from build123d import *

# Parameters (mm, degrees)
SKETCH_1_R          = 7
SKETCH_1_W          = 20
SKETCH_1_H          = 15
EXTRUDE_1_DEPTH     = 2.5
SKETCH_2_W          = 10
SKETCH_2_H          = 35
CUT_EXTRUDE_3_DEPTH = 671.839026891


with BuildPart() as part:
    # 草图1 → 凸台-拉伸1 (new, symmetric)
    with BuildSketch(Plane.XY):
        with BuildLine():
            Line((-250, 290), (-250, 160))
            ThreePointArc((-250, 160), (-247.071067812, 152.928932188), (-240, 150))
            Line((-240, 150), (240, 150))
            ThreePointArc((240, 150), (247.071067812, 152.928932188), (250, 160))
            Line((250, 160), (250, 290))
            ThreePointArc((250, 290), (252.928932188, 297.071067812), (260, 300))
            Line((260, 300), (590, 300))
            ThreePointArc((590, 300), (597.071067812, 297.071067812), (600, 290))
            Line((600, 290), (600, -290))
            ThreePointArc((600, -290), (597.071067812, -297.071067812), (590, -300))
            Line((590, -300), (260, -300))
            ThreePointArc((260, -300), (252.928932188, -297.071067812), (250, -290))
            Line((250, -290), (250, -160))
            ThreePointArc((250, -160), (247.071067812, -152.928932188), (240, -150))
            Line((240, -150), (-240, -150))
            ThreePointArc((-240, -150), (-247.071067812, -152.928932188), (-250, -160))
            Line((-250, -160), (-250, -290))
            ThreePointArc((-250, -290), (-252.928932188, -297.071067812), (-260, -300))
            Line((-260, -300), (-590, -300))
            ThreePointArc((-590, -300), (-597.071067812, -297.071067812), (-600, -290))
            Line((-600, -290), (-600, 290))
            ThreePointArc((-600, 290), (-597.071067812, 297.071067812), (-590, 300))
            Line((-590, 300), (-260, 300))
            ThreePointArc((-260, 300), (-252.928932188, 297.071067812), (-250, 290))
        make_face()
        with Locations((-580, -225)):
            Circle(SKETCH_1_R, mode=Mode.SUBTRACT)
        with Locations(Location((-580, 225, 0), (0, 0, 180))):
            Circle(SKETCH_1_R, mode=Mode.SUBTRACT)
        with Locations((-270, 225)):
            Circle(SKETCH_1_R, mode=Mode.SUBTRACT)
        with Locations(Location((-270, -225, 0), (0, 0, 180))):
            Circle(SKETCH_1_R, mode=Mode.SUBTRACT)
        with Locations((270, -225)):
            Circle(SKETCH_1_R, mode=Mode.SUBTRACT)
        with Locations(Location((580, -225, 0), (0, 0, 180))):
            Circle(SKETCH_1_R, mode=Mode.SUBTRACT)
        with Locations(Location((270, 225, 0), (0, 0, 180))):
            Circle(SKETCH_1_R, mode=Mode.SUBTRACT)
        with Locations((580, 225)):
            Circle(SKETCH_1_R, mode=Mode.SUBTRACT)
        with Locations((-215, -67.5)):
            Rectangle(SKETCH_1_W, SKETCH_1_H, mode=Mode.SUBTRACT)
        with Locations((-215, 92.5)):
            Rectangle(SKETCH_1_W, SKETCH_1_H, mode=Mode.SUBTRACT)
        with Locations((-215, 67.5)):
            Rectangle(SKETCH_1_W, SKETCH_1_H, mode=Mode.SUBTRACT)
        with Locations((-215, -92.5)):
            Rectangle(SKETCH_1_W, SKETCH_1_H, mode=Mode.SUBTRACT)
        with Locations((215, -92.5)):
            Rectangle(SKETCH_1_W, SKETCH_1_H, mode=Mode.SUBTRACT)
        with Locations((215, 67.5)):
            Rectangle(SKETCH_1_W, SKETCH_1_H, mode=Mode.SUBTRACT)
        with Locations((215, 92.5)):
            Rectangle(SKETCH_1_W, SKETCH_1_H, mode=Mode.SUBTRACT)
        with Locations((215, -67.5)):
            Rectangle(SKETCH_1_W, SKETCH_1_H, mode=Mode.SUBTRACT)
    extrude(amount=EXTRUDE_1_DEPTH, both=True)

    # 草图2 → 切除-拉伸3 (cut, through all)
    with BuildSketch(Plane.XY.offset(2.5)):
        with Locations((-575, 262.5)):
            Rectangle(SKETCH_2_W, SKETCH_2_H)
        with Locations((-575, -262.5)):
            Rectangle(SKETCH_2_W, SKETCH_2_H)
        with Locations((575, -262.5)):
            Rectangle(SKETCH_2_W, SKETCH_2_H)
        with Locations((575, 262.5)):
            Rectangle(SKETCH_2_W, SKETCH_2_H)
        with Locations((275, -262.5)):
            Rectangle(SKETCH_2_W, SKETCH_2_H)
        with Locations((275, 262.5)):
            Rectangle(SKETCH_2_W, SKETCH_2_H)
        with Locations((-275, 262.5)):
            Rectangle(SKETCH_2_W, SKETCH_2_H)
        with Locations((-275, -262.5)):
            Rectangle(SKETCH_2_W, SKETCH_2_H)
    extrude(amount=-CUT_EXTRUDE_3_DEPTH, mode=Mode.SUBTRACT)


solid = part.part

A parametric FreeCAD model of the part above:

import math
import FreeCAD as App
import Part
import Sketcher
Q = App.Units.Quantity

doc = App.newDocument("Part")
body = doc.addObject("PartDesign::Body", "Body")

sketch1 = doc.addObject("Sketcher::SketchObject", "Sketch")
body.addObject(sketch1)
sketch1.AttachmentSupport = (doc.XY_Plane, [""])
sketch1.MapMode = "FlatFace"
sketch1.addGeometry([
    Part.LineSegment(App.Vector(-250, 160, 0), App.Vector(-250, 290, 0)),
    Part.ArcOfCircle(Part.Circle(App.Vector(-260, 290, 0), App.Vector(0, 0, 1), 10), math.radians(0), math.radians(90)),
    Part.LineSegment(App.Vector(-260, 300, 0), App.Vector(-590, 300, 0)),
    Part.ArcOfCircle(Part.Circle(App.Vector(-590, 290, 0), App.Vector(0, 0, 1), 10), math.radians(90), math.radians(180)),
    Part.LineSegment(App.Vector(-600, 290, 0), App.Vector(-600, -290, 0)),
    Part.ArcOfCircle(Part.Circle(App.Vector(-590, -290, 0), App.Vector(0, 0, 1), 10), math.radians(180), math.radians(270)),
    Part.LineSegment(App.Vector(-590, -300, 0), App.Vector(-260, -300, 0)),
    Part.ArcOfCircle(Part.Circle(App.Vector(-260, -290, 0), App.Vector(0, 0, 1), 10), math.radians(-90), math.radians(0)),
    Part.LineSegment(App.Vector(-250, -290, 0), App.Vector(-250, -160, 0)),
    Part.ArcOfCircle(Part.Circle(App.Vector(-240, -160, 0), App.Vector(0, 0, 1), 10), math.radians(90), math.radians(180)),
    Part.LineSegment(App.Vector(-240, -150, 0), App.Vector(240, -150, 0)),
    Part.ArcOfCircle(Part.Circle(App.Vector(240, -160, 0), App.Vector(0, 0, 1), 10), math.radians(0), math.radians(90)),
    Part.LineSegment(App.Vector(250, -160, 0), App.Vector(250, -290, 0)),
    Part.ArcOfCircle(Part.Circle(App.Vector(260, -290, 0), App.Vector(0, 0, 1), 10), math.radians(180), math.radians(270)),
    Part.LineSegment(App.Vector(260, -300, 0), App.Vector(590, -300, 0)),
    Part.ArcOfCircle(Part.Circle(App.Vector(590, -290, 0), App.Vector(0, 0, 1), 10), math.radians(-90), math.radians(0)),
    Part.LineSegment(App.Vector(600, -290, 0), App.Vector(600, 290, 0)),
    Part.ArcOfCircle(Part.Circle(App.Vector(590, 290, 0), App.Vector(0, 0, 1), 10), math.radians(0), math.radians(90)),
    Part.LineSegment(App.Vector(590, 300, 0), App.Vector(260, 300, 0)),
    Part.ArcOfCircle(Part.Circle(App.Vector(260, 290, 0), App.Vector(0, 0, 1), 10), math.radians(90), math.radians(180)),
    Part.LineSegment(App.Vector(250, 290, 0), App.Vector(250, 160, 0)),
    Part.ArcOfCircle(Part.Circle(App.Vector(240, 160, 0), App.Vector(0, 0, 1), 10), math.radians(-90), math.radians(0)),
    Part.LineSegment(App.Vector(240, 150, 0), App.Vector(-240, 150, 0)),
    Part.ArcOfCircle(Part.Circle(App.Vector(-240, 160, 0), App.Vector(0, 0, 1), 10), math.radians(180), math.radians(270)),
    Part.Circle(App.Vector(580, -225, 0), App.Vector(0, 0, 1), 7),
    Part.Circle(App.Vector(270, -225, 0), App.Vector(0, 0, 1), 7),
    Part.LineSegment(App.Vector(205, -100, 0), App.Vector(205, -85, 0)),
    Part.LineSegment(App.Vector(205, -85, 0), App.Vector(225, -85, 0)),
    Part.LineSegment(App.Vector(225, -85, 0), App.Vector(225, -100, 0)),
    Part.LineSegment(App.Vector(225, -100, 0), App.Vector(205, -100, 0)),
    Part.LineSegment(App.Vector(205, -75, 0), App.Vector(205, -60, 0)),
    Part.LineSegment(App.Vector(205, -60, 0), App.Vector(225, -60, 0)),
    Part.LineSegment(App.Vector(225, -60, 0), App.Vector(225, -75, 0)),
    Part.LineSegment(App.Vector(225, -75, 0), App.Vector(205, -75, 0)),
    Part.Circle(App.Vector(-270, -225, 0), App.Vector(0, 0, 1), 7),
    Part.Circle(App.Vector(-580, -225, 0), App.Vector(0, 0, 1), 7),
    Part.LineSegment(App.Vector(-225, -100, 0), App.Vector(-225, -85, 0)),
    Part.LineSegment(App.Vector(-225, -85, 0), App.Vector(-205, -85, 0)),
    Part.LineSegment(App.Vector(-205, -85, 0), App.Vector(-205, -100, 0)),
    Part.LineSegment(App.Vector(-205, -100, 0), App.Vector(-225, -100, 0)),
    Part.LineSegment(App.Vector(-225, -75, 0), App.Vector(-225, -60, 0)),
    Part.LineSegment(App.Vector(-225, -60, 0), App.Vector(-205, -60, 0)),
    Part.LineSegment(App.Vector(-205, -60, 0), App.Vector(-205, -75, 0)),
    Part.LineSegment(App.Vector(-205, -75, 0), App.Vector(-225, -75, 0)),
    Part.LineSegment(App.Vector(205, 60, 0), App.Vector(205, 75, 0)),
    Part.LineSegment(App.Vector(205, 75, 0), App.Vector(225, 75, 0)),
    Part.LineSegment(App.Vector(225, 75, 0), App.Vector(225, 60, 0)),
    Part.LineSegment(App.Vector(225, 60, 0), App.Vector(205, 60, 0)),
    Part.LineSegment(App.Vector(205, 85, 0), App.Vector(205, 100, 0)),
    Part.LineSegment(App.Vector(205, 100, 0), App.Vector(225, 100, 0)),
    Part.LineSegment(App.Vector(225, 100, 0), App.Vector(225, 85, 0)),
    Part.LineSegment(App.Vector(225, 85, 0), App.Vector(205, 85, 0)),
    Part.Circle(App.Vector(580, 225, 0), App.Vector(0, 0, 1), 7),
    Part.Circle(App.Vector(270, 225, 0), App.Vector(0, 0, 1), 7),
    Part.LineSegment(App.Vector(-225, 60, 0), App.Vector(-225, 75, 0)),
    Part.LineSegment(App.Vector(-225, 75, 0), App.Vector(-205, 75, 0)),
    Part.LineSegment(App.Vector(-205, 75, 0), App.Vector(-205, 60, 0)),
    Part.LineSegment(App.Vector(-205, 60, 0), App.Vector(-225, 60, 0)),
    Part.LineSegment(App.Vector(-225, 85, 0), App.Vector(-225, 100, 0)),
    Part.LineSegment(App.Vector(-225, 100, 0), App.Vector(-205, 100, 0)),
    Part.LineSegment(App.Vector(-205, 100, 0), App.Vector(-205, 85, 0)),
    Part.LineSegment(App.Vector(-205, 85, 0), App.Vector(-225, 85, 0)),
    Part.Circle(App.Vector(-270, 225, 0), App.Vector(0, 0, 1), 7),
    Part.Circle(App.Vector(-580, 225, 0), App.Vector(0, 0, 1), 7),
], False)
sketch1.addConstraint([
    Sketcher.Constraint("Tangent", 0, 2, 1, 1),
    Sketcher.Constraint("Tangent", 1, 2, 2, 1),
    Sketcher.Constraint("Tangent", 2, 2, 3, 1),
    Sketcher.Constraint("Tangent", 3, 2, 4, 1),
    Sketcher.Constraint("Tangent", 4, 2, 5, 1),
    Sketcher.Constraint("Tangent", 5, 2, 6, 1),
    Sketcher.Constraint("Tangent", 6, 2, 7, 1),
    Sketcher.Constraint("Tangent", 7, 2, 8, 1),
    Sketcher.Constraint("Tangent", 8, 2, 9, 2),
    Sketcher.Constraint("Tangent", 9, 1, 10, 1),
    Sketcher.Constraint("Tangent", 10, 2, 11, 2),
    Sketcher.Constraint("Tangent", 11, 1, 12, 1),
    Sketcher.Constraint("Tangent", 12, 2, 13, 1),
    Sketcher.Constraint("Tangent", 13, 2, 14, 1),
    Sketcher.Constraint("Tangent", 14, 2, 15, 1),
    Sketcher.Constraint("Tangent", 15, 2, 16, 1),
    Sketcher.Constraint("Tangent", 16, 2, 17, 1),
    Sketcher.Constraint("Tangent", 17, 2, 18, 1),
    Sketcher.Constraint("Tangent", 18, 2, 19, 1),
    Sketcher.Constraint("Tangent", 19, 2, 20, 1),
    Sketcher.Constraint("Tangent", 20, 2, 21, 2),
    Sketcher.Constraint("Tangent", 21, 1, 22, 1),
    Sketcher.Constraint("Tangent", 22, 2, 23, 2),
    Sketcher.Constraint("Tangent", 23, 1, 0, 1),
    Sketcher.Constraint("Coincident", 26, 2, 27, 1),
    Sketcher.Constraint("Coincident", 27, 2, 28, 1),
    Sketcher.Constraint("Coincident", 28, 2, 29, 1),
    Sketcher.Constraint("Coincident", 29, 2, 26, 1),
    Sketcher.Constraint("Coincident", 30, 2, 31, 1),
    Sketcher.Constraint("Coincident", 31, 2, 32, 1),
    Sketcher.Constraint("Coincident", 32, 2, 33, 1),
    Sketcher.Constraint("Coincident", 33, 2, 30, 1),
    Sketcher.Constraint("Coincident", 36, 2, 37, 1),
    Sketcher.Constraint("Coincident", 37, 2, 38, 1),
    Sketcher.Constraint("Coincident", 38, 2, 39, 1),
    Sketcher.Constraint("Coincident", 39, 2, 36, 1),
    Sketcher.Constraint("Coincident", 40, 2, 41, 1),
    Sketcher.Constraint("Coincident", 41, 2, 42, 1),
    Sketcher.Constraint("Coincident", 42, 2, 43, 1),
    Sketcher.Constraint("Coincident", 43, 2, 40, 1),
    Sketcher.Constraint("Coincident", 44, 2, 45, 1),
    Sketcher.Constraint("Coincident", 45, 2, 46, 1),
    Sketcher.Constraint("Coincident", 46, 2, 47, 1),
    Sketcher.Constraint("Coincident", 47, 2, 44, 1),
    Sketcher.Constraint("Coincident", 48, 2, 49, 1),
    Sketcher.Constraint("Coincident", 49, 2, 50, 1),
    Sketcher.Constraint("Coincident", 50, 2, 51, 1),
    Sketcher.Constraint("Coincident", 51, 2, 48, 1),
    Sketcher.Constraint("Coincident", 54, 2, 55, 1),
    Sketcher.Constraint("Coincident", 55, 2, 56, 1),
    Sketcher.Constraint("Coincident", 56, 2, 57, 1),
    Sketcher.Constraint("Coincident", 57, 2, 54, 1),
    Sketcher.Constraint("Coincident", 58, 2, 59, 1),
    Sketcher.Constraint("Coincident", 59, 2, 60, 1),
    Sketcher.Constraint("Coincident", 60, 2, 61, 1),
    Sketcher.Constraint("Coincident", 61, 2, 58, 1),
    Sketcher.Constraint("Vertical", 0),
    Sketcher.Constraint("Horizontal", 2),
    Sketcher.Constraint("Vertical", 4),
    Sketcher.Constraint("Horizontal", 6),
    Sketcher.Constraint("Vertical", 8),
    Sketcher.Constraint("Horizontal", 10),
    Sketcher.Constraint("Vertical", 12),
    Sketcher.Constraint("Horizontal", 14),
    Sketcher.Constraint("Vertical", 16),
    Sketcher.Constraint("Horizontal", 18),
    Sketcher.Constraint("Vertical", 20),
    Sketcher.Constraint("Horizontal", 22),
    Sketcher.Constraint("Vertical", 26),
    Sketcher.Constraint("Horizontal", 27),
    Sketcher.Constraint("Vertical", 28),
    Sketcher.Constraint("Horizontal", 29),
    Sketcher.Constraint("Vertical", 30),
    Sketcher.Constraint("Horizontal", 31),
    Sketcher.Constraint("Vertical", 32),
    Sketcher.Constraint("Horizontal", 33),
    Sketcher.Constraint("Vertical", 36),
    Sketcher.Constraint("Horizontal", 37),
    Sketcher.Constraint("Vertical", 38),
    Sketcher.Constraint("Horizontal", 39),
    Sketcher.Constraint("Vertical", 40),
    Sketcher.Constraint("Horizontal", 41),
    Sketcher.Constraint("Vertical", 42),
    Sketcher.Constraint("Horizontal", 43),
    Sketcher.Constraint("Vertical", 44),
    Sketcher.Constraint("Horizontal", 45),
    Sketcher.Constraint("Vertical", 46),
    Sketcher.Constraint("Horizontal", 47),
    Sketcher.Constraint("Vertical", 48),
    Sketcher.Constraint("Horizontal", 49),
    Sketcher.Constraint("Vertical", 50),
    Sketcher.Constraint("Horizontal", 51),
    Sketcher.Constraint("Vertical", 54),
    Sketcher.Constraint("Horizontal", 55),
    Sketcher.Constraint("Vertical", 56),
    Sketcher.Constraint("Horizontal", 57),
    Sketcher.Constraint("Vertical", 58),
    Sketcher.Constraint("Horizontal", 59),
    Sketcher.Constraint("Vertical", 60),
    Sketcher.Constraint("Horizontal", 61),
    Sketcher.Constraint("Equal", 1, 3),
    Sketcher.Constraint("Equal", 3, 5),
    Sketcher.Constraint("Equal", 5, 7),
    Sketcher.Constraint("Equal", 7, 9),
    Sketcher.Constraint("Equal", 9, 11),
    Sketcher.Constraint("Equal", 11, 13),
    Sketcher.Constraint("Equal", 13, 15),
    Sketcher.Constraint("Equal", 15, 17),
    Sketcher.Constraint("Equal", 17, 19),
    Sketcher.Constraint("Equal", 19, 21),
    Sketcher.Constraint("Equal", 21, 23),
    Sketcher.Constraint("Equal", 24, 25),
    Sketcher.Constraint("Equal", 25, 34),
    Sketcher.Constraint("Equal", 34, 35),
    Sketcher.Constraint("Equal", 35, 52),
    Sketcher.Constraint("Equal", 52, 53),
    Sketcher.Constraint("Equal", 53, 62),
    Sketcher.Constraint("Equal", 62, 63),
    Sketcher.Constraint("Symmetric", 1, 3, 13, 3, -1, 1),
    Sketcher.Constraint("Symmetric", 5, 3, 17, 3, -1, 1),
    Sketcher.Constraint("Symmetric", 9, 3, 21, 3, -1, 1),
    Sketcher.Constraint("Symmetric", 35, 3, 52, 3, -1, 1),
    Sketcher.Constraint("Symmetric", 34, 3, 53, 3, -1, 1),
    Sketcher.Constraint("Symmetric", 25, 3, 62, 3, -1, 1),
    Sketcher.Constraint("Symmetric", 24, 3, 63, 3, -1, 1),
    Sketcher.Constraint("Symmetric", 42, 2, 44, 2, -1, 1),
    Sketcher.Constraint("Symmetric", 40, 2, 46, 2, -1, 1),
    Sketcher.Constraint("Symmetric", 38, 2, 48, 2, -1, 1),
    Sketcher.Constraint("Symmetric", 36, 2, 50, 2, -1, 1),
    Sketcher.Constraint("Symmetric", 32, 2, 54, 2, -1, 1),
    Sketcher.Constraint("Symmetric", 30, 2, 56, 2, -1, 1),
    Sketcher.Constraint("Symmetric", 28, 2, 58, 2, -1, 1),
    Sketcher.Constraint("Symmetric", 26, 2, 60, 2, -1, 1),
    Sketcher.Constraint("Symmetric", 7, 3, 13, 3, -2),
    Sketcher.Constraint("Symmetric", 25, 3, 34, 3, -2),
    Sketcher.Constraint("Symmetric", 24, 3, 35, 3, -2),
    Sketcher.Constraint("Symmetric", 27, 2, 36, 2, -2),
    Sketcher.Constraint("Symmetric", 29, 2, 38, 2, -2),
    Sketcher.Constraint("Symmetric", 31, 2, 40, 2, -2),
    Sketcher.Constraint("Symmetric", 33, 2, 42, 2, -2),
    Sketcher.Constraint("Horizontal", 24, 3, 25, 3),
    Sketcher.Constraint("Vertical", 29, 2, 30, 2),
    Sketcher.Constraint("Vertical", 28, 2, 31, 2),
    Sketcher.Constraint("Equal", 28, 30),
    Sketcher.Constraint("Diameter", 24, Q("14 mm")),
    Sketcher.Constraint("Radius", 1, Q("10 mm")),
    Sketcher.Constraint("DistanceX", 2, 2, 2, 1, Q("330 mm")),
    Sketcher.Constraint("DistanceX", 10, 1, 10, 2, Q("480 mm")),
    Sketcher.Constraint("DistanceX", 27, 1, 27, 2, Q("20 mm")),
    Sketcher.Constraint("DistanceY", 0, 1, 0, 2, Q("130 mm")),
    Sketcher.Constraint("DistanceY", 4, 2, 4, 1, Q("580 mm")),
    Sketcher.Constraint("DistanceY", 26, 1, 26, 2, Q("15 mm")),
    Sketcher.Constraint("DistanceX", -1, 1, 24, 3, Q("580 mm")),
    Sketcher.Constraint("DistanceY", 24, 3, -1, 1, Q("225 mm")),
    Sketcher.Constraint("DistanceX", -1, 1, 25, 3, Q("270 mm")),
    Sketcher.Constraint("DistanceX", -1, 1, 26, 2, Q("205 mm")),
    Sketcher.Constraint("DistanceY", 26, 2, -1, 1, Q("85 mm")),
    Sketcher.Constraint("DistanceY", 30, 2, -1, 1, Q("60 mm")),
])
pad1 = doc.addObject("PartDesign::Pad", "Pad")
body.addObject(pad1)
pad1.Profile = sketch1
pad1.Length = 5
pad1.Midplane = True

sketch2 = doc.addObject("Sketcher::SketchObject", "Sketch001")
body.addObject(sketch2)
sketch2.AttachmentSupport = (doc.XY_Plane, [""])
sketch2.MapMode = "FlatFace"
sketch2.AttachmentOffset = App.Placement(App.Vector(0, 0, 2.5), App.Rotation())
sketch2.addGeometry([
    Part.LineSegment(App.Vector(-580, 280, 0), App.Vector(-580, 245, 0)),
    Part.LineSegment(App.Vector(-580, 245, 0), App.Vector(-570, 245, 0)),
    Part.LineSegment(App.Vector(-570, 245, 0), App.Vector(-570, 280, 0)),
    Part.LineSegment(App.Vector(-570, 280, 0), App.Vector(-580, 280, 0)),
    Part.LineSegment(App.Vector(-580, -245, 0), App.Vector(-580, -280, 0)),
    Part.LineSegment(App.Vector(-580, -280, 0), App.Vector(-570, -280, 0)),
    Part.LineSegment(App.Vector(-570, -280, 0), App.Vector(-570, -245, 0)),
    Part.LineSegment(App.Vector(-570, -245, 0), App.Vector(-580, -245, 0)),
    Part.LineSegment(App.Vector(570, -245, 0), App.Vector(570, -280, 0)),
    Part.LineSegment(App.Vector(570, -280, 0), App.Vector(580, -280, 0)),
    Part.LineSegment(App.Vector(580, -280, 0), App.Vector(580, -245, 0)),
    Part.LineSegment(App.Vector(580, -245, 0), App.Vector(570, -245, 0)),
    Part.LineSegment(App.Vector(570, 280, 0), App.Vector(570, 245, 0)),
    Part.LineSegment(App.Vector(570, 245, 0), App.Vector(580, 245, 0)),
    Part.LineSegment(App.Vector(580, 245, 0), App.Vector(580, 280, 0)),
    Part.LineSegment(App.Vector(580, 280, 0), App.Vector(570, 280, 0)),
    Part.LineSegment(App.Vector(270, -245, 0), App.Vector(270, -280, 0)),
    Part.LineSegment(App.Vector(270, -280, 0), App.Vector(280, -280, 0)),
    Part.LineSegment(App.Vector(280, -280, 0), App.Vector(280, -245, 0)),
    Part.LineSegment(App.Vector(280, -245, 0), App.Vector(270, -245, 0)),
    Part.LineSegment(App.Vector(270, 280, 0), App.Vector(270, 245, 0)),
    Part.LineSegment(App.Vector(270, 245, 0), App.Vector(280, 245, 0)),
    Part.LineSegment(App.Vector(280, 245, 0), App.Vector(280, 280, 0)),
    Part.LineSegment(App.Vector(280, 280, 0), App.Vector(270, 280, 0)),
    Part.LineSegment(App.Vector(-280, 280, 0), App.Vector(-280, 245, 0)),
    Part.LineSegment(App.Vector(-280, 245, 0), App.Vector(-270, 245, 0)),
    Part.LineSegment(App.Vector(-270, 245, 0), App.Vector(-270, 280, 0)),
    Part.LineSegment(App.Vector(-270, 280, 0), App.Vector(-280, 280, 0)),
    Part.LineSegment(App.Vector(-280, -245, 0), App.Vector(-280, -280, 0)),
    Part.LineSegment(App.Vector(-280, -280, 0), App.Vector(-270, -280, 0)),
    Part.LineSegment(App.Vector(-270, -280, 0), App.Vector(-270, -245, 0)),
    Part.LineSegment(App.Vector(-270, -245, 0), App.Vector(-280, -245, 0)),
], False)
sketch2.addConstraint([
    Sketcher.Constraint("Coincident", 0, 2, 1, 1),
    Sketcher.Constraint("Coincident", 1, 2, 2, 1),
    Sketcher.Constraint("Coincident", 2, 2, 3, 1),
    Sketcher.Constraint("Coincident", 3, 2, 0, 1),
    Sketcher.Constraint("Coincident", 4, 2, 5, 1),
    Sketcher.Constraint("Coincident", 5, 2, 6, 1),
    Sketcher.Constraint("Coincident", 6, 2, 7, 1),
    Sketcher.Constraint("Coincident", 7, 2, 4, 1),
    Sketcher.Constraint("Coincident", 8, 2, 9, 1),
    Sketcher.Constraint("Coincident", 9, 2, 10, 1),
    Sketcher.Constraint("Coincident", 10, 2, 11, 1),
    Sketcher.Constraint("Coincident", 11, 2, 8, 1),
    Sketcher.Constraint("Coincident", 12, 2, 13, 1),
    Sketcher.Constraint("Coincident", 13, 2, 14, 1),
    Sketcher.Constraint("Coincident", 14, 2, 15, 1),
    Sketcher.Constraint("Coincident", 15, 2, 12, 1),
    Sketcher.Constraint("Coincident", 16, 2, 17, 1),
    Sketcher.Constraint("Coincident", 17, 2, 18, 1),
    Sketcher.Constraint("Coincident", 18, 2, 19, 1),
    Sketcher.Constraint("Coincident", 19, 2, 16, 1),
    Sketcher.Constraint("Coincident", 20, 2, 21, 1),
    Sketcher.Constraint("Coincident", 21, 2, 22, 1),
    Sketcher.Constraint("Coincident", 22, 2, 23, 1),
    Sketcher.Constraint("Coincident", 23, 2, 20, 1),
    Sketcher.Constraint("Coincident", 24, 2, 25, 1),
    Sketcher.Constraint("Coincident", 25, 2, 26, 1),
    Sketcher.Constraint("Coincident", 26, 2, 27, 1),
    Sketcher.Constraint("Coincident", 27, 2, 24, 1),
    Sketcher.Constraint("Coincident", 28, 2, 29, 1),
    Sketcher.Constraint("Coincident", 29, 2, 30, 1),
    Sketcher.Constraint("Coincident", 30, 2, 31, 1),
    Sketcher.Constraint("Coincident", 31, 2, 28, 1),
    Sketcher.Constraint("Vertical", 0),
    Sketcher.Constraint("Horizontal", 1),
    Sketcher.Constraint("Vertical", 2),
    Sketcher.Constraint("Horizontal", 3),
    Sketcher.Constraint("Vertical", 4),
    Sketcher.Constraint("Horizontal", 5),
    Sketcher.Constraint("Vertical", 6),
    Sketcher.Constraint("Horizontal", 7),
    Sketcher.Constraint("Vertical", 8),
    Sketcher.Constraint("Horizontal", 9),
    Sketcher.Constraint("Vertical", 10),
    Sketcher.Constraint("Horizontal", 11),
    Sketcher.Constraint("Vertical", 12),
    Sketcher.Constraint("Horizontal", 13),
    Sketcher.Constraint("Vertical", 14),
    Sketcher.Constraint("Horizontal", 15),
    Sketcher.Constraint("Vertical", 16),
    Sketcher.Constraint("Horizontal", 17),
    Sketcher.Constraint("Vertical", 18),
    Sketcher.Constraint("Horizontal", 19),
    Sketcher.Constraint("Vertical", 20),
    Sketcher.Constraint("Horizontal", 21),
    Sketcher.Constraint("Vertical", 22),
    Sketcher.Constraint("Horizontal", 23),
    Sketcher.Constraint("Vertical", 24),
    Sketcher.Constraint("Horizontal", 25),
    Sketcher.Constraint("Vertical", 26),
    Sketcher.Constraint("Horizontal", 27),
    Sketcher.Constraint("Vertical", 28),
    Sketcher.Constraint("Horizontal", 29),
    Sketcher.Constraint("Vertical", 30),
    Sketcher.Constraint("Horizontal", 31),
    Sketcher.Constraint("Symmetric", 2, 2, 8, 2, -1, 1),
    Sketcher.Constraint("Symmetric", 0, 2, 10, 2, -1, 1),
    Sketcher.Constraint("Symmetric", 6, 2, 12, 2, -1, 1),
    Sketcher.Constraint("Symmetric", 4, 2, 14, 2, -1, 1),
    Sketcher.Constraint("Symmetric", 18, 2, 24, 2, -1, 1),
    Sketcher.Constraint("Symmetric", 16, 2, 26, 2, -1, 1),
    Sketcher.Constraint("Symmetric", 22, 2, 28, 2, -1, 1),
    Sketcher.Constraint("Symmetric", 20, 2, 30, 2, -1, 1),
    Sketcher.Constraint("Symmetric", 5, 2, 8, 2, -2),
    Sketcher.Constraint("Symmetric", 7, 2, 10, 2, -2),
    Sketcher.Constraint("Symmetric", 21, 2, 24, 2, -2),
    Sketcher.Constraint("Symmetric", 23, 2, 26, 2, -2),
    Sketcher.Constraint("Horizontal", 9, 2, 16, 2),
    Sketcher.Constraint("Horizontal", 11, 2, 18, 2),
    Sketcher.Constraint("Equal", 15, 17),
    Sketcher.Constraint("DistanceX", 1, 1, 1, 2, Q("10 mm")),
    Sketcher.Constraint("DistanceY", 0, 2, 0, 1, Q("35 mm")),
    Sketcher.Constraint("DistanceX", 0, 2, -1, 1, Q("580 mm")),
    Sketcher.Constraint("DistanceY", -1, 1, 0, 2, Q("245 mm")),
    Sketcher.Constraint("DistanceX", -1, 1, 16, 2, Q("270 mm")),
])
pocket1 = doc.addObject("PartDesign::Pocket", "Pocket")
body.addObject(pocket1)
pocket1.Profile = sketch2
pocket1.Type = "ThroughAll"

doc.recompute()
